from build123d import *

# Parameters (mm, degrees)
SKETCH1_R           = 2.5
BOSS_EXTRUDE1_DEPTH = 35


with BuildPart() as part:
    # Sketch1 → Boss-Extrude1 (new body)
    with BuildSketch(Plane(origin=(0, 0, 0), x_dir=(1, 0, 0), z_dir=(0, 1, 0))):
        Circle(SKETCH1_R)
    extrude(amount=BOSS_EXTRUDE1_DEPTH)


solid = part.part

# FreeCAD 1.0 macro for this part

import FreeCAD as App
import Part
import Sketcher

doc = App.newDocument("Part")
body = doc.addObject("PartDesign::Body", "Body")

sketch1 = doc.addObject("Sketcher::SketchObject", "Sketch")
body.addObject(sketch1)
sketch1.AttachmentSupport = (doc.XZ_Plane, [""])
sketch1.MapMode = "FlatFace"
sketch1.addGeometry(Part.Circle(App.Vector(0, 0, 0), App.Vector(0, 0, 1), 2.5), False)
sketch1.addConstraint([
    Sketcher.Constraint("Coincident", 0, 3, -1, 1),
    Sketcher.Constraint("Diameter", 0, 5.0),
])
pad1 = doc.addObject("PartDesign::Pad", "Pad")
body.addObject(pad1)
pad1.Profile = sketch1
pad1.Length = 35
pad1.Reversed = True

doc.recompute()
